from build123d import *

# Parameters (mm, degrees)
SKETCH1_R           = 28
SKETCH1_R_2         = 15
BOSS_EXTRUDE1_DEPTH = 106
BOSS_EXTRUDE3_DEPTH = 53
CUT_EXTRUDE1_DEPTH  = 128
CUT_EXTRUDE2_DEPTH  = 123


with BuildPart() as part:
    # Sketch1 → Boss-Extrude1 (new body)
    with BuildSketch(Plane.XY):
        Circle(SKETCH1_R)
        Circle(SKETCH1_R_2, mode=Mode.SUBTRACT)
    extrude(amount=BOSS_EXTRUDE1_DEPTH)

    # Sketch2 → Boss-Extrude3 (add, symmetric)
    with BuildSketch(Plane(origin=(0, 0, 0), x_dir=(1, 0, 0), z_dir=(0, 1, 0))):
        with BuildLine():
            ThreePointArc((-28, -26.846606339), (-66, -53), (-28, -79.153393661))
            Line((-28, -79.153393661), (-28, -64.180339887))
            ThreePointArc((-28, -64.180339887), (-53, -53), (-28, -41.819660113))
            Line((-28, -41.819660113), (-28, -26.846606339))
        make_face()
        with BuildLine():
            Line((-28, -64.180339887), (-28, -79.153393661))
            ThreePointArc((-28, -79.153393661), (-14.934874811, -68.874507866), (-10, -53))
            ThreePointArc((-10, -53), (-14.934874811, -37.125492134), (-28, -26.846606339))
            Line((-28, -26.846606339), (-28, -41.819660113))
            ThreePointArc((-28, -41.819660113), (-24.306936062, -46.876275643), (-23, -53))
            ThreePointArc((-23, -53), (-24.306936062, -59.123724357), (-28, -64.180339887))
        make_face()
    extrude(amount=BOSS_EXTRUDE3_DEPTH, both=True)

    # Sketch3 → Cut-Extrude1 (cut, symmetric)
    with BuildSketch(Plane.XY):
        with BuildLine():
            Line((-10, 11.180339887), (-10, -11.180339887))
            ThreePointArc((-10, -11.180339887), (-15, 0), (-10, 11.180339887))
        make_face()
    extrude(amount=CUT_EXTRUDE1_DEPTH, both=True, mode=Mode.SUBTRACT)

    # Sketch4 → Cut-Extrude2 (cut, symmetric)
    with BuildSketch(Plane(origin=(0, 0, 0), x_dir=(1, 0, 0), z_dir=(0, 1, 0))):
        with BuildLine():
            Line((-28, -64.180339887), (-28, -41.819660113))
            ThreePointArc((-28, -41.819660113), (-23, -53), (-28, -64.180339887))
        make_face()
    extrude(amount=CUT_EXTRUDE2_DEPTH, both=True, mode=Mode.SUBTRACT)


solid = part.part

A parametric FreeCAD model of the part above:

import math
import FreeCAD as App
import Part
import Sketcher
from FreeCAD import Vector

doc = App.newDocument("Part")
params = doc.addObject("Spreadsheet::Sheet", "Params")
for row, (alias, value) in enumerate([
    ("sketch1_diameter", "56 mm"),
    ("sketch1_diameter2", "30 mm"),
    ("pad1_length", "106 mm"),
    ("sketch2_radius", "28 mm"),
    ("sketch2_radius2", "15 mm"),
    ("pad2_length", "106 mm"),
    ("sketch3_radius", "15 mm"),
    ("pocket1_length", "256 mm"),
    ("sketch4_radius", "15 mm"),
    ("pocket2_length", "246 mm"),
], start=1):
    params.set(f"A{row}", alias)
    params.set(f"B{row}", "=" + value)
    params.setAlias(f"B{row}", alias)

body = doc.addObject("PartDesign::Body", "Body")

# Sketch on XY plane
sketch1 = body.newObject("Sketcher::SketchObject", "Sketch")
sketch1.AttachmentSupport = (doc.getObject("XY_Plane"), [""])
sketch1.MapMode = "FlatFace"
sketch1.addGeometry([
    Part.Circle(Vector(0, 0, 0), Vector(0, 0, 1), 28),
    Part.Circle(Vector(0, 0, 0), Vector(0, 0, 1), 15),
], False)
sketch1.addConstraint([
    Sketcher.Constraint("Coincident", 0, 3, -1, 1),
    Sketcher.Constraint("Coincident", 1, 3, -1, 1),
    Sketcher.Constraint("Diameter", 0, 56.0),
    Sketcher.Constraint("Diameter", 1, 30.0),
])
sketch1.setExpression("Constraints[2]", "Params.sketch1_diameter")
sketch1.setExpression("Constraints[3]", "Params.sketch1_diameter2")
pad1 = body.newObject("PartDesign::Pad", "Pad")
pad1.Profile = sketch1
pad1.setExpression("Length", "Params.pad1_length")

# Sketch on XZ plane
sketch2 = body.newObject("Sketcher::SketchObject", "Sketch001")
sketch2.AttachmentSupport = (doc.getObject("XZ_Plane"), [""])
sketch2.MapMode = "FlatFace"
sketch2.addGeometry([
    Part.ArcOfCircle(Part.Circle(Vector(-38, 53, 0), Vector(0, 0, 1), 28), math.radians(69), math.radians(291)),  # 0
    Part.ArcOfCircle(Part.Circle(Vector(-38, 53, 0), Vector(0, 0, 1), 28), math.radians(0), math.radians(69)),  # 1
    Part.ArcOfCircle(Part.Circle(Vector(-38, 53, 0), Vector(0, 0, 1), 28), math.radians(-69), math.radians(0)),  # 2
    Part.ArcOfCircle(Part.Circle(Vector(-38, 53, 0), Vector(0, 0, 1), 15), math.radians(48), math.radians(312)),  # 3
    Part.ArcOfCircle(Part.Circle(Vector(-38, 53, 0), Vector(0, 0, 1), 15), math.radians(-48), math.radians(0)),  # 4
    Part.ArcOfCircle(Part.Circle(Vector(-38, 53, 0), Vector(0, 0, 1), 15), math.radians(0), math.radians(48)),  # 5
], False)
sketch2.addConstraint([
    Sketcher.Constraint("Tangent", 0, 1, 1, 2),
    Sketcher.Constraint("Tangent", 1, 1, 2, 2),
    Sketcher.Constraint("Tangent", 2, 1, 0, 2),
    Sketcher.Constraint("Tangent", 3, 2, 4, 1),
    Sketcher.Constraint("Tangent", 4, 2, 5, 1),
    Sketcher.Constraint("Tangent", 5, 2, 3, 1),
    Sketcher.Constraint("Coincident", 3, 3, 0, 3),
    Sketcher.Constraint("Horizontal", 5, 3, 1, 1),
    Sketcher.Constraint("Horizontal", 1, 1, 4, 2),
    Sketcher.Constraint("Vertical", 0, 1, 2, 1),
    Sketcher.Constraint("Vertical", 2, 1, 3, 2),
    Sketcher.Constraint("Vertical", 3, 2, 5, 2),
    Sketcher.Constraint("Radius", 0, 28.0),
    Sketcher.Constraint("Radius", 3, 15.0),
    Sketcher.Constraint("DistanceX", 0, 3, -1, 1, 38.0),
    Sketcher.Constraint("DistanceY", -1, 1, 0, 3, 53.0),
    Sketcher.Constraint("DistanceX", 0, 1, -1, 1, 28.0),
])
sketch2.setExpression("Constraints[12]", "Params.sketch2_radius")
sketch2.setExpression("Constraints[13]", "Params.sketch2_radius2")
pad2 = body.newObject("PartDesign::Pad", "Pad001")
pad2.Profile = sketch2
pad2.setExpression("Length", "Params.pad2_length")
pad2.Midplane = True

# Sketch on XY plane
sketch3 = body.newObject("Sketcher::SketchObject", "Sketch002")
sketch3.AttachmentSupport = (doc.getObject("XY_Plane"), [""])
sketch3.MapMode = "FlatFace"
sketch3.addGeometry([
    Part.LineSegment(Vector(-10, -11, 0), Vector(-10, 11, 0)),
    Part.ArcOfCircle(Part.Circle(Vector(0, 0, 0), Vector(0, 0, 1), 15), math.radians(132), math.radians(228)),
], False)
sketch3.addConstraint([
    Sketcher.Constraint("Coincident", 0, 1, 1, 2),
    Sketcher.Constraint("Coincident", 1, 1, 0, 2),
    Sketcher.Constraint("Vertical", 0),
    Sketcher.Constraint("Coincident", 1, 3, -1, 1),
    Sketcher.Constraint("Radius", 1, 15.0),
    Sketcher.Constraint("DistanceX", 0, 1, -1, 1, 10.0),
])
sketch3.setExpression("Constraints[4]", "Params.sketch3_radius")
pocket1 = body.newObject("PartDesign::Pocket", "Pocket")
pocket1.Profile = sketch3
pocket1.setExpression("Length", "Params.pocket1_length")
pocket1.Midplane = True

# Sketch on XZ plane
sketch4 = body.newObject("Sketcher::SketchObject", "Sketch003")
sketch4.AttachmentSupport = (doc.getObject("XZ_Plane"), [""])
sketch4.MapMode = "FlatFace"
sketch4.addGeometry([
    Part.LineSegment(Vector(-28, 42, 0), Vector(-28, 64, 0)),
    Part.ArcOfCircle(Part.Circle(Vector(-38, 53, 0), Vector(0, 0, 1), 15), math.radians(-48), math.radians(48)),
], False)
sketch4.addConstraint([
    Sketcher.Constraint("Coincident", 0, 1, 1, 1),
    Sketcher.Constraint("Coincident", 1, 2, 0, 2),
    Sketcher.Constraint("Vertical", 0),
    Sketcher.Constraint("Radius", 1, 15.0),
    Sketcher.Constraint("DistanceX", 1, 3, -1, 1, 38.0),
    Sketcher.Constraint("DistanceY", -1, 1, 1, 3, 53.0),
    Sketcher.Constraint("DistanceX", 0, 1, -1, 1, 28.0),
])
sketch4.setExpression("Constraints[3]", "Params.sketch4_radius")
pocket2 = body.newObject("PartDesign::Pocket", "Pocket001")
pocket2.Profile = sketch4
pocket2.setExpression("Length", "Params.pocket2_length")
pocket2.Midplane = True

doc.recompute()
